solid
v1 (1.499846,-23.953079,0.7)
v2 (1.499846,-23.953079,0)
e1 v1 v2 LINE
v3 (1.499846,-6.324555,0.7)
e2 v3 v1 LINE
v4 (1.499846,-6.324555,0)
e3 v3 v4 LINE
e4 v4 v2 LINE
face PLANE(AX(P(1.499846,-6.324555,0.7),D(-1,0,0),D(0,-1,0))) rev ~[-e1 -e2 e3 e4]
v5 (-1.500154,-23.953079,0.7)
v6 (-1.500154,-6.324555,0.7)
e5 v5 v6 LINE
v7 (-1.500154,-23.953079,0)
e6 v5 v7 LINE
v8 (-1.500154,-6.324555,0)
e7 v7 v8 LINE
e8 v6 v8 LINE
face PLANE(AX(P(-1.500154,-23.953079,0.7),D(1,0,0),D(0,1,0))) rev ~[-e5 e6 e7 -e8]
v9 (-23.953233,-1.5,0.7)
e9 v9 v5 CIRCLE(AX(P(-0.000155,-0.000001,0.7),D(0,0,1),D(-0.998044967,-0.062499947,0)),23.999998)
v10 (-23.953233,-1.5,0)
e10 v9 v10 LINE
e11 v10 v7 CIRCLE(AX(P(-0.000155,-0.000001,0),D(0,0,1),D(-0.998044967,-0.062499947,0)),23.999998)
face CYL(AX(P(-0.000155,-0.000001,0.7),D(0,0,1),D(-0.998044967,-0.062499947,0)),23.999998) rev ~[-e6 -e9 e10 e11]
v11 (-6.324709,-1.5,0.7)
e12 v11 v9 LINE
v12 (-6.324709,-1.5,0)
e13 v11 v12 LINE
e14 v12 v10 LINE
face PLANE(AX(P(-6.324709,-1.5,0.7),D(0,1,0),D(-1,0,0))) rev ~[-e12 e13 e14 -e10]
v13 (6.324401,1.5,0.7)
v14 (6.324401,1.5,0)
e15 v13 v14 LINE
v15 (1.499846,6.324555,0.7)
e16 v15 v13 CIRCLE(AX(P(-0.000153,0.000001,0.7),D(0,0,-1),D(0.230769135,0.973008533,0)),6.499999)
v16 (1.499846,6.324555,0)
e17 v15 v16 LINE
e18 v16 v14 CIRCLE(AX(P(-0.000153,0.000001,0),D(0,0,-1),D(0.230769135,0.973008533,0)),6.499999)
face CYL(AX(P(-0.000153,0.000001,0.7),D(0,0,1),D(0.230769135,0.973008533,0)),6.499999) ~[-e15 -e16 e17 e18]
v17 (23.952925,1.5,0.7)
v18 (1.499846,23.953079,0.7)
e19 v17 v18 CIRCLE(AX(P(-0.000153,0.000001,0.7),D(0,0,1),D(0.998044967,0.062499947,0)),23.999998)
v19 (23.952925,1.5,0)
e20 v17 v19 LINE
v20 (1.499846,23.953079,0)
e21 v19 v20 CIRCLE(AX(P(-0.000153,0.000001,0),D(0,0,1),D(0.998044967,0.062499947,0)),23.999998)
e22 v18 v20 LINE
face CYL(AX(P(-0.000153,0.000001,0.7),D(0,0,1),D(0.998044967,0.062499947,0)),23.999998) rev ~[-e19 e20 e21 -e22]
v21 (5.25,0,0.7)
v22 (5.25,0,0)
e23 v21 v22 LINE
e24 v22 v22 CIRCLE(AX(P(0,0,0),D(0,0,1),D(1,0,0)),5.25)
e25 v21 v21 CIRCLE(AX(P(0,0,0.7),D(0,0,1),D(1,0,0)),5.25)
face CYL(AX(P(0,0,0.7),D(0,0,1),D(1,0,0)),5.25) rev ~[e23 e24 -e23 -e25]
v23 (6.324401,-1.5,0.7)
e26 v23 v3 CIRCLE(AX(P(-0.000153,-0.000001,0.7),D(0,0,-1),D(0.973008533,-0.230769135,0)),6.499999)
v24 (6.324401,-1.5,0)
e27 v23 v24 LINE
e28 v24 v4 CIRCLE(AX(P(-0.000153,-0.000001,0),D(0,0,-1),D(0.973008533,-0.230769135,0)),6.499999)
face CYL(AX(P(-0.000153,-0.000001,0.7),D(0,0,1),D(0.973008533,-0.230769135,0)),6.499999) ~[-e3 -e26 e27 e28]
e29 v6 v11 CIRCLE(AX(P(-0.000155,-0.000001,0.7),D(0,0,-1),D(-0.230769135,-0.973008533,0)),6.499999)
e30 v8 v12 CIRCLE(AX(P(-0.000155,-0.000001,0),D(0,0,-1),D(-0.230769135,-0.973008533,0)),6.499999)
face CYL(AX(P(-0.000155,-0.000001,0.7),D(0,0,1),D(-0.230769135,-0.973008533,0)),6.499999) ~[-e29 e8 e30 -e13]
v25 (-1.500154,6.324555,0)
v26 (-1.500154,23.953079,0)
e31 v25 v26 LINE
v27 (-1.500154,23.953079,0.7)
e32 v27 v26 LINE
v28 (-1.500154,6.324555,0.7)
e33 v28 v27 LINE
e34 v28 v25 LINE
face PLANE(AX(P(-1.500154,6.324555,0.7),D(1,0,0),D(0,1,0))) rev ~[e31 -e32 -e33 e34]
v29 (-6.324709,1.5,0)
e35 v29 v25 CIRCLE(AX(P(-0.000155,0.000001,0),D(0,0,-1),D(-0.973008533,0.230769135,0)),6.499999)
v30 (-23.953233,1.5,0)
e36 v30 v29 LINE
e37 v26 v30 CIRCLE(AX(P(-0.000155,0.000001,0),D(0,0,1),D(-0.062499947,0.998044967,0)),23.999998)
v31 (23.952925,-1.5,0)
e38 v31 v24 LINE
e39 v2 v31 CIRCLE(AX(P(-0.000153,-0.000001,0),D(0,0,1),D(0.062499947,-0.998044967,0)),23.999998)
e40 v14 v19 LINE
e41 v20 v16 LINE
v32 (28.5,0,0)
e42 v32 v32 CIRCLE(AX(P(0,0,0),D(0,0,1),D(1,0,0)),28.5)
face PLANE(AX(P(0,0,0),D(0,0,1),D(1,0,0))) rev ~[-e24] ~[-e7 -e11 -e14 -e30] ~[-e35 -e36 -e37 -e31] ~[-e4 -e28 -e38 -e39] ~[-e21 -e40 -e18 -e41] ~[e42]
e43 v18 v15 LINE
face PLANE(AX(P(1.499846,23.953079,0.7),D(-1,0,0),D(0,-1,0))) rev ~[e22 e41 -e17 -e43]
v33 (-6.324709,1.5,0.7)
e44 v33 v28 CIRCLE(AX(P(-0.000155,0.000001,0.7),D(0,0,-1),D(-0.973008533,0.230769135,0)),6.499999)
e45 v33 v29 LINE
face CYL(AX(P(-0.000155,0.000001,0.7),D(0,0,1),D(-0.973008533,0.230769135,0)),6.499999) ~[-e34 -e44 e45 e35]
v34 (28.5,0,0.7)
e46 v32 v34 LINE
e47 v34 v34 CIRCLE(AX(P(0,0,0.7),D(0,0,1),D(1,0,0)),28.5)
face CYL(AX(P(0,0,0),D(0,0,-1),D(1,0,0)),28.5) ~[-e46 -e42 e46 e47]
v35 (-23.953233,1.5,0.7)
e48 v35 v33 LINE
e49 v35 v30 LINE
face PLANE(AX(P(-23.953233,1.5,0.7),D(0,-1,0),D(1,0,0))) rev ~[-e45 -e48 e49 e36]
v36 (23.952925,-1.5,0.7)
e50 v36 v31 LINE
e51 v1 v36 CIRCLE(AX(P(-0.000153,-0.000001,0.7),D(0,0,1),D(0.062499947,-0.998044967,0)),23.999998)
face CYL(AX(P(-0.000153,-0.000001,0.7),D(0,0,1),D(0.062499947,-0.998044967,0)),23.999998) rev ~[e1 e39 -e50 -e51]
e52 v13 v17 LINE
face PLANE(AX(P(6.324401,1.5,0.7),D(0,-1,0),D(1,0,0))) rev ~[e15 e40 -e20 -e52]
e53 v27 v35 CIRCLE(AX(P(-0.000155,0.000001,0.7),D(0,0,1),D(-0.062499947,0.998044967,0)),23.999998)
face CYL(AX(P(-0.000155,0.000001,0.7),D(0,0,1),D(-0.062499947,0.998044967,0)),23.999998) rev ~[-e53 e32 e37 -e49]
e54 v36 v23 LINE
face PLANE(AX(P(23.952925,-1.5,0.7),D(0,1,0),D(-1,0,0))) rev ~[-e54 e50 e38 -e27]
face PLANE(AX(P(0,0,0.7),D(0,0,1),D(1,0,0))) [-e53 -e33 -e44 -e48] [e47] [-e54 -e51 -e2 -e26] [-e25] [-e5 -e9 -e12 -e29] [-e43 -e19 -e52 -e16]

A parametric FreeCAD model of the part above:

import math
import FreeCAD as App
import Part
import Sketcher
from FreeCAD import Vector

doc = App.newDocument("Part")
body = doc.addObject("PartDesign::Body", "Body")

sketch1 = doc.addObject("Sketcher::SketchObject", "Sketch")
body.addObject(sketch1)
sketch1.AttachmentSupport = (doc.XY_Plane, [""])
sketch1.MapMode = "FlatFace"
sketch1.addGeometry(Part.Circle(Vector(0, 0, 0), Vector(0, 0, 1), 28), False)
sketch1.addConstraint(Sketcher.Constraint("Coincident", 0, 3, -1, 1))
sketch1.addConstraint(Sketcher.Constraint("Diameter", 0, 57.0))
pad1 = doc.addObject("PartDesign::Pad", "Pad")
body.addObject(pad1)
pad1.Profile = sketch1
pad1.Length = 0.7

sketch2 = doc.addObject("Sketcher::SketchObject", "Sketch001")
body.addObject(sketch2)
sketch2.AttachmentSupport = (doc.XY_Plane, [""])
sketch2.MapMode = "FlatFace"
sketch2.AttachmentOffset = App.Placement(Vector(0, 0, 0.7), App.Rotation())
sketch2.addGeometry(Part.Circle(Vector(0, 0, 0), Vector(0, 0, 1), 5), False)
sketch2.addConstraint(Sketcher.Constraint("Coincident", 0, 3, -1, 1))
sketch2.addConstraint(Sketcher.Constraint("Diameter", 0, 10.5))
pocket1 = doc.addObject("PartDesign::Pocket", "Pocket")
body.addObject(pocket1)
pocket1.Profile = sketch2
pocket1.Type = "ThroughAll"

sketch3 = doc.addObject("Sketcher::SketchObject", "Sketch002")
body.addObject(sketch3)
sketch3.AttachmentSupport = (doc.XY_Plane, [""])
sketch3.MapMode = "FlatFace"
sketch3.AttachmentOffset = App.Placement(Vector(0, 0, 0.7), App.Rotation())
sketch3.addGeometry(Part.LineSegment(Vector(-2, 6, 0), Vector(-2, 24, 0)), False)
sketch3.addGeometry(Part.ArcOfCircle(Part.Circle(Vector(0, 0, 0), Vector(0, 0, 1), 24), math.radians(94), math.radians(176)), False)
sketch3.addGeometry(Part.LineSegment(Vector(-24, 2, 0), Vector(-6, 2, 0)), False)
sketch3.addGeometry(Part.ArcOfCircle(Part.Circle(Vector(0, 0, 0), Vector(0, 0, 1), 6), math.radians(103), math.radians(167)), False)
sketch3.addGeometry(Part.LineSegment(Vector(6, 2, 0), Vector(24, 2, 0)), False)
sketch3.addGeometry(Part.ArcOfCircle(Part.Circle(Vector(0, 0, 0), Vector(0, 0, 1), 24), math.radians(4), math.radians(86)), False)
sketch3.addGeometry(Part.LineSegment(Vector(1, 24, 0), Vector(1, 6, 0)), False)
sketch3.addGeometry(Part.ArcOfCircle(Part.Circle(Vector(0, 0, 0), Vector(0, 0, 1), 6), math.radians(13), math.radians(77)), False)
sketch3.addGeometry(Part.ArcOfCircle(Part.Circle(Vector(0, 0, 0), Vector(0, 0, 1), 24), math.radians(-86), math.radians(-4)), False)
sketch3.addGeometry(Part.LineSegment(Vector(24, -2, 0), Vector(6, -2, 0)), False)
sketch3.addGeometry(Part.ArcOfCircle(Part.Circle(Vector(0, 0, 0), Vector(0, 0, 1), 6), math.radians(-77), math.radians(-13)), False)
sketch3.addGeometry(Part.LineSegment(Vector(1, -6, 0), Vector(1, -24, 0)), False)
sketch3.addGeometry(Part.ArcOfCircle(Part.Circle(Vector(0, 0, 0), Vector(0, 0, 1), 24), math.radians(-176), math.radians(-94)), False)
sketch3.addGeometry(Part.LineSegment(Vector(-2, -24, 0), Vector(-2, -6, 0)), False)
sketch3.addGeometry(Part.ArcOfCircle(Part.Circle(Vector(0, 0, 0), Vector(0, 0, 1), 6), math.radians(-167), math.radians(-103)), False)
sketch3.addGeometry(Part.LineSegment(Vector(-6, -2, 0), Vector(-24, -2, 0)), False)
sketch3.addConstraint(Sketcher.Constraint("Coincident", 0, 2, 1, 1))
sketch3.addConstraint(Sketcher.Constraint("Coincident", 1, 2, 2, 1))
sketch3.addConstraint(Sketcher.Constraint("Coincident", 2, 2, 3, 2))
sketch3.addConstraint(Sketcher.Constraint("Coincident", 3, 1, 0, 1))
sketch3.addConstraint(Sketcher.Constraint("Coincident", 4, 2, 5, 1))
sketch3.addConstraint(Sketcher.Constraint("Coincident", 5, 2, 6, 1))
sketch3.addConstraint(Sketcher.Constraint("Coincident", 6, 2, 7, 2))
sketch3.addConstraint(Sketcher.Constraint("Coincident", 7, 1, 4, 1))
sketch3.addConstraint(Sketcher.Constraint("Coincident", 8, 2, 9, 1))
sketch3.addConstraint(Sketcher.Constraint("Coincident", 9, 2, 10, 2))
sketch3.addConstraint(Sketcher.Constraint("Coincident", 10, 1, 11, 1))
sketch3.addConstraint(Sketcher.Constraint("Coincident", 11, 2, 8, 1))
sketch3.addConstraint(Sketcher.Constraint("Coincident", 12, 2, 13, 1))
sketch3.addConstraint(Sketcher.Constraint("Coincident", 13, 2, 14, 2))
sketch3.addConstraint(Sketcher.Constraint("Coincident", 14, 1, 15, 1))
sketch3.addConstraint(Sketcher.Constraint("Coincident", 15, 2, 12, 1))
sketch3.addConstraint(Sketcher.Constraint("Vertical", 0))
sketch3.addConstraint(Sketcher.Constraint("Horizontal", 2))
sketch3.addConstraint(Sketcher.Constraint("Horizontal", 4))
sketch3.addConstraint(Sketcher.Constraint("Vertical", 6))
sketch3.addConstraint(Sketcher.Constraint("Horizontal", 9))
sketch3.addConstraint(Sketcher.Constraint("Vertical", 11))
sketch3.addConstraint(Sketcher.Constraint("Vertical", 13))
sketch3.addConstraint(Sketcher.Constraint("Horizontal", 15))
sketch3.addConstraint(Sketcher.Constraint("Coincident", 3, 3, 1, 3))
sketch3.addConstraint(Sketcher.Constraint("Coincident", 5, 3, 1, 3))
sketch3.addConstraint(Sketcher.Constraint("Coincident", 7, 3, 1, 3))
sketch3.addConstraint(Sketcher.Constraint("Coincident", 8, 3, 1, 3))
sketch3.addConstraint(Sketcher.Constraint("Coincident", 10, 3, 1, 3))
sketch3.addConstraint(Sketcher.Constraint("Coincident", 12, 3, 1, 3))
sketch3.addConstraint(Sketcher.Constraint("Coincident", 14, 3, 1, 3))
sketch3.addConstraint(Sketcher.Constraint("Equal", 1, 5))
sketch3.addConstraint(Sketcher.Constraint("Equal", 3, 7))
sketch3.addConstraint(Sketcher.Constraint("Equal", 5, 8))
sketch3.addConstraint(Sketcher.Constraint("Equal", 7, 10))
sketch3.addConstraint(Sketcher.Constraint("Equal", 8, 12))
sketch3.addConstraint(Sketcher.Constraint("Equal", 10, 14))
sketch3.addConstraint(Sketcher.Constraint("Symmetric", 4, 2, 8, 2, -1))
sketch3.addConstraint(Sketcher.Constraint("Horizontal", 2, 2, 4, 2))
sketch3.addConstraint(Sketcher.Constraint("Horizontal", 0, 2, 5, 2))
sketch3.addConstraint(Sketcher.Constraint("Horizontal", 11, 2, 12, 2))
sketch3.addConstraint(Sketcher.Constraint("Horizontal", 9, 2, 14, 1))
sketch3.addConstraint(Sketcher.Constraint("Vertical", 6, 2, 10, 1))
sketch3.addConstraint(Sketcher.Constraint("Equal", 15, 0))
sketch3.addConstraint(Sketcher.Constraint("Radius", 1, 23.999998))
sketch3.addConstraint(Sketcher.Constraint("Radius", 3, 6.499999))
sketch3.addConstraint(Sketcher.Constraint("DistanceX", 0, 2, 5, 2, 3.0))
sketch3.addConstraint(Sketcher.Constraint("DistanceX", -1, 1, 7, 1, 6.324401))
pocket2 = doc.addObject("PartDesign::Pocket", "Pocket001")
body.addObject(pocket2)
pocket2.Profile = sketch3
pocket2.Type = "ThroughAll"

doc.recompute()
